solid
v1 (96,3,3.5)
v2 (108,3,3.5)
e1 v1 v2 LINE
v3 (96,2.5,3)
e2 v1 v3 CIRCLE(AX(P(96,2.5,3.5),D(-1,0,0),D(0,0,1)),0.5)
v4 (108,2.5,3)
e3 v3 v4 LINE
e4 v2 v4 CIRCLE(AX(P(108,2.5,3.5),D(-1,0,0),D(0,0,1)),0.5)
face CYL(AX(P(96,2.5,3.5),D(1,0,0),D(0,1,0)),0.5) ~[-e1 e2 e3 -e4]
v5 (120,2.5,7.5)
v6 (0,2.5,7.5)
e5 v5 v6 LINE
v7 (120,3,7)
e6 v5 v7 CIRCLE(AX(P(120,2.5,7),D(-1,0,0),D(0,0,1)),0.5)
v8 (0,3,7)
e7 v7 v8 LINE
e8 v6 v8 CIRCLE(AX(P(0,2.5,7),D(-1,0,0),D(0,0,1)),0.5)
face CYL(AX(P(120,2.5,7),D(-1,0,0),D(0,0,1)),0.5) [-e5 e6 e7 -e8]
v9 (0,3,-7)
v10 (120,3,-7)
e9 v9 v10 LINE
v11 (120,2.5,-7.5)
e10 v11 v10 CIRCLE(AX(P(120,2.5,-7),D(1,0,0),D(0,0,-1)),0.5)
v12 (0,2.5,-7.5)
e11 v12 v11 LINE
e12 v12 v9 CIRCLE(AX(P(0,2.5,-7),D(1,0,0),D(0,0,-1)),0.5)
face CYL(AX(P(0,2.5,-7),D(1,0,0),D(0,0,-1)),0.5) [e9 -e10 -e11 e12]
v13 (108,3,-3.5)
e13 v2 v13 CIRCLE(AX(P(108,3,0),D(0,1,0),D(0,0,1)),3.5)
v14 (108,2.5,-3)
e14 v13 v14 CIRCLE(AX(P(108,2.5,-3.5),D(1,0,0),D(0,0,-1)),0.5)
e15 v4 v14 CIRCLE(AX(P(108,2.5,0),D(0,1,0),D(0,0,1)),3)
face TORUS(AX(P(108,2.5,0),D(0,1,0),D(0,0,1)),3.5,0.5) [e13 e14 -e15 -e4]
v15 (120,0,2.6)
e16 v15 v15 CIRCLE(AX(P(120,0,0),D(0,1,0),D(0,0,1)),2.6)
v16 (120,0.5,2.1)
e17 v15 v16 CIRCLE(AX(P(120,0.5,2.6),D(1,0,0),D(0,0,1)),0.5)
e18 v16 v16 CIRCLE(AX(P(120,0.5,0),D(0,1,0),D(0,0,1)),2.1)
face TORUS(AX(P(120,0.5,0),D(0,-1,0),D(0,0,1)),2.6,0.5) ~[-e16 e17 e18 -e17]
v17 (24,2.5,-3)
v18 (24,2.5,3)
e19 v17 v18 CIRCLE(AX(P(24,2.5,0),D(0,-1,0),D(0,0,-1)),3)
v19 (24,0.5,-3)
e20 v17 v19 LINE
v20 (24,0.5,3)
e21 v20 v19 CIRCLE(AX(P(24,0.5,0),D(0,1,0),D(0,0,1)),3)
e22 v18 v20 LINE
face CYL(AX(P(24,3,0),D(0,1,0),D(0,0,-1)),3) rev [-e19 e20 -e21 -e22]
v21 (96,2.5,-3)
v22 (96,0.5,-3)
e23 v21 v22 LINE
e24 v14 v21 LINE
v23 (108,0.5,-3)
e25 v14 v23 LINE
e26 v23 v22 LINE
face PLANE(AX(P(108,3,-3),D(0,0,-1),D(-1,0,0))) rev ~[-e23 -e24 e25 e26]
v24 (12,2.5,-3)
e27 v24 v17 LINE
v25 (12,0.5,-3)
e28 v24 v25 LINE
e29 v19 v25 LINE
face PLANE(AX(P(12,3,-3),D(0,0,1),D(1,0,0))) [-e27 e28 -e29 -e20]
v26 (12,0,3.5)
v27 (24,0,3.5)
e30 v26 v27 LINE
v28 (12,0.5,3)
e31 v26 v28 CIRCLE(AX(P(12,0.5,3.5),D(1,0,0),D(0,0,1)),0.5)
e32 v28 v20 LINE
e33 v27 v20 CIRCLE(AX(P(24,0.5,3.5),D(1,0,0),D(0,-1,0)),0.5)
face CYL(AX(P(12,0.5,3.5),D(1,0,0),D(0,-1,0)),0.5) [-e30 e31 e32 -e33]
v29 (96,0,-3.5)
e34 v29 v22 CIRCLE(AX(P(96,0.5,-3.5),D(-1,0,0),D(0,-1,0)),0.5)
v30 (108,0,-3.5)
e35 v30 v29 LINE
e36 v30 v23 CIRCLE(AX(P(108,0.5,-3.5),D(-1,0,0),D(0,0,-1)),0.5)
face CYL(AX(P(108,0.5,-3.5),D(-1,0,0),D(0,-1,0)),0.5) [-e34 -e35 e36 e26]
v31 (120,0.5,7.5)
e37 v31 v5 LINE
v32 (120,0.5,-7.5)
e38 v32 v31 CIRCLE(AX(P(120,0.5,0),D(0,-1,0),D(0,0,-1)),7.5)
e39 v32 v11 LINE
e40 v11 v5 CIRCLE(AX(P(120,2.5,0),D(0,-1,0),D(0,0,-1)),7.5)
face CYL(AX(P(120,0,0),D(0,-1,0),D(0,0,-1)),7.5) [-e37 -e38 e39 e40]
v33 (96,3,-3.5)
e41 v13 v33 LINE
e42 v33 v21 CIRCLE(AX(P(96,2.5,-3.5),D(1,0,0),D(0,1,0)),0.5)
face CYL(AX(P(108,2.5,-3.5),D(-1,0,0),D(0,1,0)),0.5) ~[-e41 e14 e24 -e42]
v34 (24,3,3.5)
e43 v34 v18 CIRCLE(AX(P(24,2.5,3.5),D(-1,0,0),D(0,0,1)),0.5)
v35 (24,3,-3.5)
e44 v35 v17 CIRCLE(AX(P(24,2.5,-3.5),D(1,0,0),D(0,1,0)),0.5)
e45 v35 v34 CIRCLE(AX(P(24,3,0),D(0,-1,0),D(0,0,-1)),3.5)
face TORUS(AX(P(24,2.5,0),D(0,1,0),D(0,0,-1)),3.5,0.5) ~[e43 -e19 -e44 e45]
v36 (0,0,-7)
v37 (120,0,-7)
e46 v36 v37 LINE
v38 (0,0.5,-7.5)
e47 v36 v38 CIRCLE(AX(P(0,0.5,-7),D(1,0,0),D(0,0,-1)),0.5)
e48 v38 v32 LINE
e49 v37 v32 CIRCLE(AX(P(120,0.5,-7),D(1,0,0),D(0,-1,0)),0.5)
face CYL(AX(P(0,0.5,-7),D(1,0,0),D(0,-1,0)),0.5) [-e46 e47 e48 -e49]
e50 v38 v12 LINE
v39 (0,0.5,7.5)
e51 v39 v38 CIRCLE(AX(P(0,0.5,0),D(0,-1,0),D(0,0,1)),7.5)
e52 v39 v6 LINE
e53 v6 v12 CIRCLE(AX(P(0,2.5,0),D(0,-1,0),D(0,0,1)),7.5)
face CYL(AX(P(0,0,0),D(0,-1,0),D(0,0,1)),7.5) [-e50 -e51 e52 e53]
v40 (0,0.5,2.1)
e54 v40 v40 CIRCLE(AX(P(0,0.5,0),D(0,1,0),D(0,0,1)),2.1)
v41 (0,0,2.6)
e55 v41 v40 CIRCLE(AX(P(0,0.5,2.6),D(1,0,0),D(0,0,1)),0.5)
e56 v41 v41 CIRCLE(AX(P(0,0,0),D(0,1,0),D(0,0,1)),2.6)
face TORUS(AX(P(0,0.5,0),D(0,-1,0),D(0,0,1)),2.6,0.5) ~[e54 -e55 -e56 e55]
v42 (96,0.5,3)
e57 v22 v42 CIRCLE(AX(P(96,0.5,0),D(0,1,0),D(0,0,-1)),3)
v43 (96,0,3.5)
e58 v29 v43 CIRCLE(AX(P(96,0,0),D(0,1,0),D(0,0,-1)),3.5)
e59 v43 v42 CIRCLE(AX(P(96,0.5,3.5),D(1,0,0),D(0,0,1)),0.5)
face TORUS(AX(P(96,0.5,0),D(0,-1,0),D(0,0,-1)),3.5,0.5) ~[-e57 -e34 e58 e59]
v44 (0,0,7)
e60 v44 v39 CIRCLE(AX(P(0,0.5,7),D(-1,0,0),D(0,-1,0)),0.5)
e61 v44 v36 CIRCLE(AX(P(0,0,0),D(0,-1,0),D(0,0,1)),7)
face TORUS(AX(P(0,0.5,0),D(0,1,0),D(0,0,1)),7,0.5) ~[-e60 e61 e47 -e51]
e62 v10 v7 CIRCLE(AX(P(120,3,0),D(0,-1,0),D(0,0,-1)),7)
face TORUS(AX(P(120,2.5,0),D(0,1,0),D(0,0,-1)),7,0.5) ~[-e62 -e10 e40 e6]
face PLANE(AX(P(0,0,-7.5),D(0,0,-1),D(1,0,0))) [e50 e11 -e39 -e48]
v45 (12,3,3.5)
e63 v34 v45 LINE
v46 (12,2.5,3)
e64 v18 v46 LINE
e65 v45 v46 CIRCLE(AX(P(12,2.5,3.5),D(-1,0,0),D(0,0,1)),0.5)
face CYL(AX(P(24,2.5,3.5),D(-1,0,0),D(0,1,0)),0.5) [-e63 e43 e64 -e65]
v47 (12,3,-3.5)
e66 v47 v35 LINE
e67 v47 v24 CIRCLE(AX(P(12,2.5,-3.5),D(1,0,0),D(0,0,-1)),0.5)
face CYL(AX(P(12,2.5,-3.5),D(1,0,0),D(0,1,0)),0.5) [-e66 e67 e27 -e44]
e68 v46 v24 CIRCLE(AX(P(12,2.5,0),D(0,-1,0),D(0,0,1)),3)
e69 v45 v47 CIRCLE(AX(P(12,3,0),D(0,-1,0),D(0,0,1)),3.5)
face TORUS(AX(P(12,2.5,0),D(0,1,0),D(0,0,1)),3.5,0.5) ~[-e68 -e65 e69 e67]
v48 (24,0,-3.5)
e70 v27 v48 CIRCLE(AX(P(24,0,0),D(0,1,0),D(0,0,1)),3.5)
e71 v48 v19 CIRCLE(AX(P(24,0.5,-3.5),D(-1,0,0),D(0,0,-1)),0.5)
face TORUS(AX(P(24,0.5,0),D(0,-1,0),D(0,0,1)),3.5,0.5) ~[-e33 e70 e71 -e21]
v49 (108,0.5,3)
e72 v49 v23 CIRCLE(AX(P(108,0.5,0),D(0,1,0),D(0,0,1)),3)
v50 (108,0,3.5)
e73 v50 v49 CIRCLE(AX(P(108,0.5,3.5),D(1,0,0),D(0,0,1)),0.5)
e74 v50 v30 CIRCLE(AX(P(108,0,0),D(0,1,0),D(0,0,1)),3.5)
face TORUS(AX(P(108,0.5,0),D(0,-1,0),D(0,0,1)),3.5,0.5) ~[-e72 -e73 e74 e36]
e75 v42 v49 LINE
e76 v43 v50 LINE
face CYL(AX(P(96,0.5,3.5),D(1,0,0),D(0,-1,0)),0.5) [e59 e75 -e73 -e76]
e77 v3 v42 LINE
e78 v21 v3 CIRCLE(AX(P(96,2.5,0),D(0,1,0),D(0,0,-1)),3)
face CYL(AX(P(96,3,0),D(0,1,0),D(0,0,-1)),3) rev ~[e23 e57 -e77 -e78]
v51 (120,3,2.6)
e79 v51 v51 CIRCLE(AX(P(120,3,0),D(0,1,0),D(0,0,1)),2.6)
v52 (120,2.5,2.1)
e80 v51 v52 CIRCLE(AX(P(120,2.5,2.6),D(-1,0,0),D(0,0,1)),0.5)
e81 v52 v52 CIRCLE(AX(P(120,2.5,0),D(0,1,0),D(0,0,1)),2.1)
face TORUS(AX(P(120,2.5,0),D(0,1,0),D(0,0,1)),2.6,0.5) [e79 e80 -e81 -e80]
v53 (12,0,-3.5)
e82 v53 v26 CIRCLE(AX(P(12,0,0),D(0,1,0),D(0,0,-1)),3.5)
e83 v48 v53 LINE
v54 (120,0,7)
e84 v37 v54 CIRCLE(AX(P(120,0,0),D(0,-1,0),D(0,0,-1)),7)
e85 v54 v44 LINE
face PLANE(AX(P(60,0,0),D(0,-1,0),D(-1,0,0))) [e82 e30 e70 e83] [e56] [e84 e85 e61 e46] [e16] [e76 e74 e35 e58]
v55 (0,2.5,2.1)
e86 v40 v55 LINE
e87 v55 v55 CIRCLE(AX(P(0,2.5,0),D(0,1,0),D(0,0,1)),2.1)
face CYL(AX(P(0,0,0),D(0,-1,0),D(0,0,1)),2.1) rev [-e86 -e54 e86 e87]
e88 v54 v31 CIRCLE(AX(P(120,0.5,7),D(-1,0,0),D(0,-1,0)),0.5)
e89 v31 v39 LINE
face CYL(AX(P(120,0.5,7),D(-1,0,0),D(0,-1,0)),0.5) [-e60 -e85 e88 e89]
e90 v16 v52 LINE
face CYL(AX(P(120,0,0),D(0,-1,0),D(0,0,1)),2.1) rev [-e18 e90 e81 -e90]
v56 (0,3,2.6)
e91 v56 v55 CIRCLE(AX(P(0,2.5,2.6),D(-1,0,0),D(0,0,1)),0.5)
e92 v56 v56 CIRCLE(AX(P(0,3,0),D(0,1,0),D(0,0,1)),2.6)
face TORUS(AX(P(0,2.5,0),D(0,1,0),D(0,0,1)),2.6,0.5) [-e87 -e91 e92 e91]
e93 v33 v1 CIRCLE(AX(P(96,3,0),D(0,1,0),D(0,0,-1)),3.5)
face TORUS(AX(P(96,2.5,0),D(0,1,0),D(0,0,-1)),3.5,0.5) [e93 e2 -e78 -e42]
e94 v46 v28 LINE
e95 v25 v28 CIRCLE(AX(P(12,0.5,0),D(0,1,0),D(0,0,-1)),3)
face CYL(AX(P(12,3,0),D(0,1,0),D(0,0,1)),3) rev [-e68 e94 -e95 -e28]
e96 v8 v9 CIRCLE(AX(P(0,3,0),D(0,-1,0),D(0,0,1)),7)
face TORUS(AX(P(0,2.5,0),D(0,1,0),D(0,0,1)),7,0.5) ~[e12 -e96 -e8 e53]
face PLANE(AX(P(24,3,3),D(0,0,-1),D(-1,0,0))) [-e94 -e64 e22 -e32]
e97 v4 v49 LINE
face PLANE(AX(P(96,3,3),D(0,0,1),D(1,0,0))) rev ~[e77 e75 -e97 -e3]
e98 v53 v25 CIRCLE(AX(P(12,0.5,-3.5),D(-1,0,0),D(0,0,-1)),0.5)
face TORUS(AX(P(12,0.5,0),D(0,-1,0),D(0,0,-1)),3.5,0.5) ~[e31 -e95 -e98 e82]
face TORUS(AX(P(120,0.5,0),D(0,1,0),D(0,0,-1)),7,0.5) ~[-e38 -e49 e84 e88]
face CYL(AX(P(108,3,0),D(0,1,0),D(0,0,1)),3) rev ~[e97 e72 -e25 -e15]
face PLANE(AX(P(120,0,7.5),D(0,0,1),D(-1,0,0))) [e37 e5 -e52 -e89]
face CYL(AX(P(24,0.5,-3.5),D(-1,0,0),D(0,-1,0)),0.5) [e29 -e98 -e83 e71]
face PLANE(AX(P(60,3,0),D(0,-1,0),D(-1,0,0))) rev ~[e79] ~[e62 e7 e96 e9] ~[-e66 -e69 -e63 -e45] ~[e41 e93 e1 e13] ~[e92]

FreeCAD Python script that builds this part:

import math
import FreeCAD as App
import Part
import Sketcher
Q = App.Units.Quantity


def edges_at(feature, points):
    """Names of the edges that pass closest to the given points."""
    edges = feature.Shape.Edges
    near = lambda p: min(range(len(edges)), key=lambda i: edges[i].distToShape(Part.Vertex(*p))[0])
    return sorted({f"Edge{near(p) + 1}" for p in points})

doc = App.newDocument("Part")
body = doc.addObject("PartDesign::Body", "Body")

# Sketch on XZ plane
sketch1 = body.newObject("Sketcher::SketchObject", "Sketch")
sketch1.AttachmentSupport = (doc.getObject("XZ_Plane"), [""])
sketch1.MapMode = "FlatFace"
sketch1.addGeometry(Part.LineSegment(App.Vector(120, -7.5, 0), App.Vector(0, -7.5, 0)), False)
sketch1.addGeometry(Part.ArcOfCircle(Part.Circle(App.Vector(0, 0, 0), App.Vector(0, 0, 1), 7.5), math.radians(90), math.radians(270)), False)
sketch1.addGeometry(Part.LineSegment(App.Vector(0, 7.5, 0), App.Vector(120, 7.5, 0)), False)
sketch1.addGeometry(Part.ArcOfCircle(Part.Circle(App.Vector(120, 0, 0), App.Vector(0, 0, 1), 7.5), math.radians(-90), math.radians(90)), False)
sketch1.addGeometry(Part.Circle(App.Vector(120, 0, 0), App.Vector(0, 0, 1), 2.1), False)
sketch1.addGeometry(Part.Circle(App.Vector(0, 0, 0), App.Vector(0, 0, 1), 2.1), False)
sketch1.addConstraint(Sketcher.Constraint("Tangent", 0, 2, 1, 2))
sketch1.addConstraint(Sketcher.Constraint("Tangent", 1, 1, 2, 1))
sketch1.addConstraint(Sketcher.Constraint("Tangent", 2, 2, 3, 2))
sketch1.addConstraint(Sketcher.Constraint("Tangent", 3, 1, 0, 1))
sketch1.addConstraint(Sketcher.Constraint("Horizontal", 0))
sketch1.addConstraint(Sketcher.Constraint("Horizontal", 2))
sketch1.addConstraint(Sketcher.Constraint("Coincident", 1, 3, -1, 1))
sketch1.addConstraint(Sketcher.Constraint("Coincident", 5, 3, -1, 1))
sketch1.addConstraint(Sketcher.Constraint("Coincident", 4, 3, 3, 3))
sketch1.addConstraint(Sketcher.Constraint("Equal", 4, 5))
sketch1.addConstraint(Sketcher.Constraint("Diameter", 4, Q("4.2 mm")))
sketch1.addConstraint(Sketcher.Constraint("Radius", 1, Q("7.5 mm")))
sketch1.addConstraint(Sketcher.Constraint("DistanceX", 0, 2, 0, 1, Q("120 mm")))
pad1 = body.newObject("PartDesign::Pad", "Pad")
pad1.Profile = sketch1
pad1.Length = 3
pad1.Reversed = True

# Sketch on XZ plane
sketch2 = body.newObject("Sketcher::SketchObject", "Sketch001")
sketch2.AttachmentSupport = (doc.getObject("XZ_Plane"), [""])
sketch2.MapMode = "FlatFace"
sketch2.AttachmentOffset = App.Placement(App.Vector(0, 0, -3), App.Rotation())
sketch2.addGeometry(Part.LineSegment(App.Vector(24, -3, 0), App.Vector(12, -3, 0)), False)
sketch2.addGeometry(Part.ArcOfCircle(Part.Circle(App.Vector(12, 0, 0), App.Vector(0, 0, 1), 3), math.radians(90), math.radians(270)), False)
sketch2.addGeometry(Part.LineSegment(App.Vector(12, 3, 0), App.Vector(24, 3, 0)), False)
sketch2.addGeometry(Part.ArcOfCircle(Part.Circle(App.Vector(24, 0, 0), App.Vector(0, 0, 1), 3), math.radians(-90), math.radians(90)), False)
sketch2.addGeometry(Part.LineSegment(App.Vector(108, -3, 0), App.Vector(96, -3, 0)), False)
sketch2.addGeometry(Part.ArcOfCircle(Part.Circle(App.Vector(96, 0, 0), App.Vector(0, 0, 1), 3), math.radians(90), math.radians(270)), False)
sketch2.addGeometry(Part.LineSegment(App.Vector(96, 3, 0), App.Vector(108, 3, 0)), False)
sketch2.addGeometry(Part.ArcOfCircle(Part.Circle(App.Vector(108, 0, 0), App.Vector(0, 0, 1), 3), math.radians(-90), math.radians(90)), False)
sketch2.addConstraint(Sketcher.Constraint("Tangent", 0, 2, 1, 2))
sketch2.addConstraint(Sketcher.Constraint("Tangent", 1, 1, 2, 1))
sketch2.addConstraint(Sketcher.Constraint("Tangent", 2, 2, 3, 2))
sketch2.addConstraint(Sketcher.Constraint("Tangent", 3, 1, 0, 1))
sketch2.addConstraint(Sketcher.Constraint("Tangent", 4, 2, 5, 2))
sketch2.addConstraint(Sketcher.Constraint("Tangent", 5, 1, 6, 1))
sketch2.addConstraint(Sketcher.Constraint("Tangent", 6, 2, 7, 2))
sketch2.addConstraint(Sketcher.Constraint("Tangent", 7, 1, 4, 1))
sketch2.addConstraint(Sketcher.Constraint("Horizontal", 0))
sketch2.addConstraint(Sketcher.Constraint("Horizontal", 2))
sketch2.addConstraint(Sketcher.Constraint("Horizontal", 4))
sketch2.addConstraint(Sketcher.Constraint("Horizontal", 6))
sketch2.addConstraint(Sketcher.Constraint("Equal", 3, 5))
sketch2.addConstraint(Sketcher.Constraint("PointOnObject", 1, 3, -1))
sketch2.addConstraint(Sketcher.Constraint("PointOnObject", 5, 3, -1))
sketch2.addConstraint(Sketcher.Constraint("Equal", 2, 4))
sketch2.addConstraint(Sketcher.Constraint("Radius", 1, Q("3 mm")))
sketch2.addConstraint(Sketcher.Constraint("DistanceX", 0, 2, 0, 1, Q("12 mm")))
sketch2.addConstraint(Sketcher.Constraint("DistanceX", -1, 1, 1, 3, Q("12 mm")))
sketch2.addConstraint(Sketcher.Constraint("DistanceX", -1, 1, 5, 3, Q("96 mm")))
pocket1 = body.newObject("PartDesign::Pocket", "Pocket")
pocket1.Profile = sketch2
pocket1.Type = "ThroughAll"
pocket1.Reversed = True
doc.recompute()

fillet = body.newObject("PartDesign::Fillet", "Fillet")
fillet.Base = (pocket1, edges_at(pocket1, [
    (-7.5, 3, 0),
    (0, 0, -2.1),
    (0, 3, -2.1),
    (60, 3, 7.5),
    (120, 0, -2.1),
    (120, 3, -2.1),
    (9, 0, 0),
    (18, 0, -3),
    (27, 0, 0),
    (18, 0, 3),
    (9, 3, 0),
    (18, 3, 3),
    (27, 3, 0),
    (18, 3, -3),
    (111, 0, 0),
    (127.5, 3, 0),
    (102, 0, 3),
    (93, 0, 0),
    (102, 0, -3),
    (111, 3, 0),
    (102, 3, -3),
    (93, 3, 0),
    (102, 3, 3),
    (60, 0, 7.5),
    (-7.5, 0, 0),
    (60, 0, -7.5),
    (127.5, 0, 0),
    (60, 3, -7.5),
]))
fillet.Radius = 0.5

doc.recompute()
